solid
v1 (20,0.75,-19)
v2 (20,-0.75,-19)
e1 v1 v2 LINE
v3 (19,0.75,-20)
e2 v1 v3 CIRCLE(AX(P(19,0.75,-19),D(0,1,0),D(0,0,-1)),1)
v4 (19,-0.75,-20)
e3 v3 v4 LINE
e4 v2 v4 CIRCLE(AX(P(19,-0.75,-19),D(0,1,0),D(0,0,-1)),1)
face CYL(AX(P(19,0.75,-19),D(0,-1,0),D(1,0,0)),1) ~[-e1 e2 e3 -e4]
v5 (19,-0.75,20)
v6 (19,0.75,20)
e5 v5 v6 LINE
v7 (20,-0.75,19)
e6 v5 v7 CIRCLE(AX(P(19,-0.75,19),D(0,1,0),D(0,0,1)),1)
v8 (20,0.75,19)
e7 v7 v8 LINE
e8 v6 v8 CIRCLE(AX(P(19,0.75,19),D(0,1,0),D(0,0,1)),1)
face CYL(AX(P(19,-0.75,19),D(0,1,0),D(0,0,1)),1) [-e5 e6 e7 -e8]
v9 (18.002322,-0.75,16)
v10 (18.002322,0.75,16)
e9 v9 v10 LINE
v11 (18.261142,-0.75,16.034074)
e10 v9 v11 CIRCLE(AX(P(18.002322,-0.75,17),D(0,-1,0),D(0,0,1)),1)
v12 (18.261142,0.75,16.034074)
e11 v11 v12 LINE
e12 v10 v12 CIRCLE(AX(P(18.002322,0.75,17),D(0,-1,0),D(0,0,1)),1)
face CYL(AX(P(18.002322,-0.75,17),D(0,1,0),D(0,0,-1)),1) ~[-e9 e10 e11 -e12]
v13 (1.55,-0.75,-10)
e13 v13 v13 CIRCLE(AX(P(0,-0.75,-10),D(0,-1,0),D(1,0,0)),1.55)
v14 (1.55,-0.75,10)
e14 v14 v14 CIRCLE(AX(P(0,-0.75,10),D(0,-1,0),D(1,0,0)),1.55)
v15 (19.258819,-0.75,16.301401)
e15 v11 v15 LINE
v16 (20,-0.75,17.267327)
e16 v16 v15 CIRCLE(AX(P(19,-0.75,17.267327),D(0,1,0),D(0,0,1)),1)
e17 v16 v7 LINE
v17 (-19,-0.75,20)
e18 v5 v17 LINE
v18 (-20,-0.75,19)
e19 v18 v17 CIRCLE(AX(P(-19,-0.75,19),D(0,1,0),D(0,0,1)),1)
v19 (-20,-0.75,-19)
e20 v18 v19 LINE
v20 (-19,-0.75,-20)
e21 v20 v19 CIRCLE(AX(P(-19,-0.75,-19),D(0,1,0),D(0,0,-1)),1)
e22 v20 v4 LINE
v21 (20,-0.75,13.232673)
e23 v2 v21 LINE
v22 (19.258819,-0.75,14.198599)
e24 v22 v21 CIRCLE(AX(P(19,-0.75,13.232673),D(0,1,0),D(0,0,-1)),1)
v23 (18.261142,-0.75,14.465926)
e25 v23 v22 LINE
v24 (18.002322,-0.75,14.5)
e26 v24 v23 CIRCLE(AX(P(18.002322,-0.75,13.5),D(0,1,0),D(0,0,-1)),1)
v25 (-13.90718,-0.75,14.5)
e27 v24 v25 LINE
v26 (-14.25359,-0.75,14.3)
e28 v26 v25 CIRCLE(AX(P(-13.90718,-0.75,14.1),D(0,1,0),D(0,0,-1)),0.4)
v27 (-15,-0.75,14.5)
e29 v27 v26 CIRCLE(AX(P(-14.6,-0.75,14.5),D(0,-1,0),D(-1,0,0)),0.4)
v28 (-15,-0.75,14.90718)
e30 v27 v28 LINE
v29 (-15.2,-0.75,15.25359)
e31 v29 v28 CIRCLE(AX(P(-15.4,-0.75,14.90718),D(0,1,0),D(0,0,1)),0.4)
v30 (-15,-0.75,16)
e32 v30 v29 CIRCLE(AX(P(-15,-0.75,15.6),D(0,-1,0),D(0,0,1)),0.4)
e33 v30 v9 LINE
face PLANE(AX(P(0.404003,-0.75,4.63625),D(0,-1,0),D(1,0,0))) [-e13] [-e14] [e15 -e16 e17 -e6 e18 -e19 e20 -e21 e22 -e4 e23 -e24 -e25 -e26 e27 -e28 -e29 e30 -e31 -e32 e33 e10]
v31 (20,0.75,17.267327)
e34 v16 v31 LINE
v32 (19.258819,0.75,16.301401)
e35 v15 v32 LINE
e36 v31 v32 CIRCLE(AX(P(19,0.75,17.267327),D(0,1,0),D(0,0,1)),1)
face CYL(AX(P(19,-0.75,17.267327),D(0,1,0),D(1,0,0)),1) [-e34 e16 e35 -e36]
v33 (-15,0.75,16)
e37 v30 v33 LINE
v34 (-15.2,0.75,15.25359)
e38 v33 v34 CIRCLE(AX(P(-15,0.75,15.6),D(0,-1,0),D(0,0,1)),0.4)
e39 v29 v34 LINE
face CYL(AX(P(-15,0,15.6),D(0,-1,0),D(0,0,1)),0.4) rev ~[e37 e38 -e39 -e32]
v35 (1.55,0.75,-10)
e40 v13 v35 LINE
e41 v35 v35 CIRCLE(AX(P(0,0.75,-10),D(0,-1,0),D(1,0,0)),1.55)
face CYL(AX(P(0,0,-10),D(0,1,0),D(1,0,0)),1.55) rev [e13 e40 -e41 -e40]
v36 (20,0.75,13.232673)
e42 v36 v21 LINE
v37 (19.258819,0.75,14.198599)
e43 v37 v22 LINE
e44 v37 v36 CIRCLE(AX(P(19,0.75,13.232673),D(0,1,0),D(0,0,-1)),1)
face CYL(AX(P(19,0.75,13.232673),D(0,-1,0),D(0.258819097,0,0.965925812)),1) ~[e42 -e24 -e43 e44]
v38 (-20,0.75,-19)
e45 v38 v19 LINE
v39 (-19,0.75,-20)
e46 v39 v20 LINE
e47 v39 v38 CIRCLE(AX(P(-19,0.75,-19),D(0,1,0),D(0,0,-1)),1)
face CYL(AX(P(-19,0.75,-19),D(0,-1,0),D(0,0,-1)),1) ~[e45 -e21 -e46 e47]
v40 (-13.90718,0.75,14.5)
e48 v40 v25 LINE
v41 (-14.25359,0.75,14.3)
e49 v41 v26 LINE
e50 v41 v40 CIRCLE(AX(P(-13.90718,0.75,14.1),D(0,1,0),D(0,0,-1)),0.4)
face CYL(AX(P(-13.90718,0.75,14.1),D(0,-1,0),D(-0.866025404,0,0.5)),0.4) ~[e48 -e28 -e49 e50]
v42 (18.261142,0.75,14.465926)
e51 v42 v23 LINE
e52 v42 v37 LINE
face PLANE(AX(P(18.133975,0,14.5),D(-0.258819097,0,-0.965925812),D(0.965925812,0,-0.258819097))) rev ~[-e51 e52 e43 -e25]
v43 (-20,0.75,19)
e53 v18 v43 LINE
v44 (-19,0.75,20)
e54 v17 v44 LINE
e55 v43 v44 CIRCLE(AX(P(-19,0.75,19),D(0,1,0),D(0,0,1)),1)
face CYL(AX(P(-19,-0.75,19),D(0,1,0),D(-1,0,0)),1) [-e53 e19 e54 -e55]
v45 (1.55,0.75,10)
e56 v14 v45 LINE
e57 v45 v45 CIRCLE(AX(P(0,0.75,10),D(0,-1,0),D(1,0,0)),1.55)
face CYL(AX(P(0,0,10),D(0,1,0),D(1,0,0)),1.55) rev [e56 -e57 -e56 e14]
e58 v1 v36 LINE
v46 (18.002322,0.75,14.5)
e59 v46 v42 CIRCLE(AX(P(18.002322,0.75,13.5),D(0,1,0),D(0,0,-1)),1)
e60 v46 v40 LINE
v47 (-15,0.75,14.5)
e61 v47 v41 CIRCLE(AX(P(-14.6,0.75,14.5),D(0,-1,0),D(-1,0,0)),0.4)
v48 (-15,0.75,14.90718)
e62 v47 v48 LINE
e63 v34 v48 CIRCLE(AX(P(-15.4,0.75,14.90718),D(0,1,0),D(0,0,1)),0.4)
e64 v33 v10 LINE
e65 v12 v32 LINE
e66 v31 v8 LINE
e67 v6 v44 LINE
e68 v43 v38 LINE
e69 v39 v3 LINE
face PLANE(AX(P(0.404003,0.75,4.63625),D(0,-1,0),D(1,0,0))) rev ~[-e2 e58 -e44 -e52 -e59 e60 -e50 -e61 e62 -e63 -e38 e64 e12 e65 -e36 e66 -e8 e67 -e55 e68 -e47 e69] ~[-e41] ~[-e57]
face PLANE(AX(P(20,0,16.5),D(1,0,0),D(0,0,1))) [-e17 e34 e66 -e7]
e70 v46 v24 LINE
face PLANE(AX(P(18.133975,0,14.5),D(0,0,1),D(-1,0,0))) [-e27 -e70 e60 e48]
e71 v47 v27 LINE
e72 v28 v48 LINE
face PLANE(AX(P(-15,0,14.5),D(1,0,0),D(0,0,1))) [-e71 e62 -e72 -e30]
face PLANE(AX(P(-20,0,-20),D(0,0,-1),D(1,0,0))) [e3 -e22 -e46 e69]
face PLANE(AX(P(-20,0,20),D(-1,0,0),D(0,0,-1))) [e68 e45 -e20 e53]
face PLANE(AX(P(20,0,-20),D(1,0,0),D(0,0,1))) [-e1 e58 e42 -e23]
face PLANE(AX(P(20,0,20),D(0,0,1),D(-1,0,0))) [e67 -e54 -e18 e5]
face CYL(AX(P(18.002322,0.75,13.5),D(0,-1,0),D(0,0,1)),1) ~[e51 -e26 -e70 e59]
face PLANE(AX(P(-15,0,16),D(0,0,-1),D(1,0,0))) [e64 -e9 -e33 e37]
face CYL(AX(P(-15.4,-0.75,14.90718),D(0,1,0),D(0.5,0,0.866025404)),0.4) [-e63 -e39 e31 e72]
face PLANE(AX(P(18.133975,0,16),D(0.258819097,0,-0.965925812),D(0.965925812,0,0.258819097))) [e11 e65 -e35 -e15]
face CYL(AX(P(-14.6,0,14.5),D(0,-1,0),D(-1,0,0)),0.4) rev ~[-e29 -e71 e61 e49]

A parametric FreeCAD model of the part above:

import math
import FreeCAD as App
import Part
import Sketcher
Q = App.Units.Quantity


def edges_at(feature, points):
    """Names of the edges that pass closest to the given points."""
    edges = feature.Shape.Edges
    near = lambda p: min(range(len(edges)), key=lambda i: edges[i].distToShape(Part.Vertex(*p))[0])
    return sorted({f"Edge{near(p) + 1}" for p in points})

doc = App.newDocument("Part")
body = doc.addObject("PartDesign::Body", "Body")

# Sketch on XZ plane
sketch1 = body.newObject("Sketcher::SketchObject", "Sketch")
sketch1.AttachmentSupport = (doc.getObject("XZ_Plane"), [""])
sketch1.MapMode = "FlatFace"
sketch1.addGeometry([
    Part.LineSegment(App.Vector(-20, 20, 0), App.Vector(-20, -20, 0)),  # 0
    Part.LineSegment(App.Vector(-20, -20, 0), App.Vector(20, -20, 0)),  # 1
    Part.LineSegment(App.Vector(20, -20, 0), App.Vector(20, 14, 0)),  # 2
    Part.LineSegment(App.Vector(20, 14, 0), App.Vector(18.13, 14.5, 0)),  # 3
    Part.LineSegment(App.Vector(18.13, 14.5, 0), App.Vector(-14.2, 14.5, 0)),  # 4
    Part.ArcOfCircle(Part.Circle(App.Vector(-14.6, 14.5, 0), App.Vector(0, 0, 1), 0.4), math.radians(180), math.radians(360)),  # 5
    Part.LineSegment(App.Vector(-15, 14.5, 0), App.Vector(-15, 15.2, 0)),  # 6
    Part.ArcOfCircle(Part.Circle(App.Vector(-15, 15.6, 0), App.Vector(0, 0, 1), 0.4), math.radians(90), math.radians(270)),  # 7
    Part.LineSegment(App.Vector(-15, 16, 0), App.Vector(18.13, 16, 0)),  # 8
    Part.LineSegment(App.Vector(18.13, 16, 0), App.Vector(20, 16.5, 0)),  # 9
    Part.LineSegment(App.Vector(20, 16.5, 0), App.Vector(20, 20, 0)),  # 10
    Part.LineSegment(App.Vector(20, 20, 0), App.Vector(-20, 20, 0)),  # 11
    Part.Circle(App.Vector(0, -10, 0), App.Vector(0, 0, 1), 1.55),  # 12
    Part.Circle(App.Vector(0, 10, 0), App.Vector(0, 0, 1), 1.55),  # 13
], False)
sketch1.addConstraint([
    Sketcher.Constraint("Coincident", 0, 2, 1, 1),
    Sketcher.Constraint("Coincident", 1, 2, 2, 1),
    Sketcher.Constraint("Coincident", 2, 2, 3, 1),
    Sketcher.Constraint("Coincident", 3, 2, 4, 1),
    Sketcher.Constraint("Coincident", 4, 2, 5, 2),
    Sketcher.Constraint("Tangent", 5, 1, 6, 1),
    Sketcher.Constraint("Coincident", 6, 2, 7, 2),
    Sketcher.Constraint("Tangent", 7, 1, 8, 1),
    Sketcher.Constraint("Coincident", 8, 2, 9, 1),
    Sketcher.Constraint("Coincident", 9, 2, 10, 1),
    Sketcher.Constraint("Coincident", 10, 2, 11, 1),
    Sketcher.Constraint("Coincident", 11, 2, 0, 1),
    Sketcher.Constraint("Vertical", 0),
    Sketcher.Constraint("Horizontal", 1),
    Sketcher.Constraint("Vertical", 2),
    Sketcher.Constraint("Horizontal", 4),
    Sketcher.Constraint("Vertical", 6),
    Sketcher.Constraint("Horizontal", 8),
    Sketcher.Constraint("Vertical", 10),
    Sketcher.Constraint("Horizontal", 11),
    Sketcher.Constraint("Equal", 5, 7),
    Sketcher.Constraint("Equal", 12, 13),
    Sketcher.Constraint("Symmetric", 12, 3, 13, 3, -1, 1),
    Sketcher.Constraint("Symmetric", 0, 2, 10, 2, -1, 1),
    Sketcher.Constraint("PointOnObject", 12, 3, -2),
    Sketcher.Constraint("Horizontal", 5, 3, 3, 2),
    Sketcher.Constraint("Vertical", 7, 3, 5, 1),
    Sketcher.Constraint("Vertical", 3, 2, 8, 2),
    Sketcher.Constraint("Vertical", 2, 2, 9, 2),
    Sketcher.Constraint("Equal", 11, 0),
    Sketcher.Constraint("Equal", 3, 9),
    Sketcher.Constraint("Diameter", 12, Q("3.1 mm")),
    Sketcher.Constraint("Radius", 5, Q("0.4 mm")),
    Sketcher.Constraint("DistanceX", 1, 1, 1, 2, Q("40 mm")),
    Sketcher.Constraint("DistanceY", 2, 1, 2, 2, Q("34 mm")),
    Sketcher.Constraint("Angle", 3, Q("164.999997 deg")),
    Sketcher.Constraint("DistanceY", 6, 1, 6, 2, Q("0.7 mm")),
    Sketcher.Constraint("DistanceY", 10, 1, 10, 2, Q("3.5 mm")),
    Sketcher.Constraint("DistanceX", 7, 3, -1, 1, Q("15 mm")),
    Sketcher.Constraint("DistanceY", 12, 3, -1, 1, Q("10 mm")),
])
pad1 = body.newObject("PartDesign::Pad", "Pad")
pad1.Profile = sketch1
pad1.Length = 1.5
pad1.Midplane = True
doc.recompute()

fillet = body.newObject("PartDesign::Fillet", "Fillet")
fillet.Base = (pad1, edges_at(pad1, [(-15, 0, 15.2), (-14.2, 0, 14.5)]))
fillet.Radius = 0.4
doc.recompute()

fillet2 = body.newObject("PartDesign::Fillet", "Fillet001")
fillet2.Base = (fillet, edges_at(fillet, [
    (-20, 0, 20),
    (-20, 0, -20),
    (20, 0, -20),
    (20, 0, 14),
    (18.134, 0, 14.5),
    (18.134, 0, 16),
    (20, 0, 16.5),
    (20, 0, 20),
]))
fillet2.Radius = 1

doc.recompute()
